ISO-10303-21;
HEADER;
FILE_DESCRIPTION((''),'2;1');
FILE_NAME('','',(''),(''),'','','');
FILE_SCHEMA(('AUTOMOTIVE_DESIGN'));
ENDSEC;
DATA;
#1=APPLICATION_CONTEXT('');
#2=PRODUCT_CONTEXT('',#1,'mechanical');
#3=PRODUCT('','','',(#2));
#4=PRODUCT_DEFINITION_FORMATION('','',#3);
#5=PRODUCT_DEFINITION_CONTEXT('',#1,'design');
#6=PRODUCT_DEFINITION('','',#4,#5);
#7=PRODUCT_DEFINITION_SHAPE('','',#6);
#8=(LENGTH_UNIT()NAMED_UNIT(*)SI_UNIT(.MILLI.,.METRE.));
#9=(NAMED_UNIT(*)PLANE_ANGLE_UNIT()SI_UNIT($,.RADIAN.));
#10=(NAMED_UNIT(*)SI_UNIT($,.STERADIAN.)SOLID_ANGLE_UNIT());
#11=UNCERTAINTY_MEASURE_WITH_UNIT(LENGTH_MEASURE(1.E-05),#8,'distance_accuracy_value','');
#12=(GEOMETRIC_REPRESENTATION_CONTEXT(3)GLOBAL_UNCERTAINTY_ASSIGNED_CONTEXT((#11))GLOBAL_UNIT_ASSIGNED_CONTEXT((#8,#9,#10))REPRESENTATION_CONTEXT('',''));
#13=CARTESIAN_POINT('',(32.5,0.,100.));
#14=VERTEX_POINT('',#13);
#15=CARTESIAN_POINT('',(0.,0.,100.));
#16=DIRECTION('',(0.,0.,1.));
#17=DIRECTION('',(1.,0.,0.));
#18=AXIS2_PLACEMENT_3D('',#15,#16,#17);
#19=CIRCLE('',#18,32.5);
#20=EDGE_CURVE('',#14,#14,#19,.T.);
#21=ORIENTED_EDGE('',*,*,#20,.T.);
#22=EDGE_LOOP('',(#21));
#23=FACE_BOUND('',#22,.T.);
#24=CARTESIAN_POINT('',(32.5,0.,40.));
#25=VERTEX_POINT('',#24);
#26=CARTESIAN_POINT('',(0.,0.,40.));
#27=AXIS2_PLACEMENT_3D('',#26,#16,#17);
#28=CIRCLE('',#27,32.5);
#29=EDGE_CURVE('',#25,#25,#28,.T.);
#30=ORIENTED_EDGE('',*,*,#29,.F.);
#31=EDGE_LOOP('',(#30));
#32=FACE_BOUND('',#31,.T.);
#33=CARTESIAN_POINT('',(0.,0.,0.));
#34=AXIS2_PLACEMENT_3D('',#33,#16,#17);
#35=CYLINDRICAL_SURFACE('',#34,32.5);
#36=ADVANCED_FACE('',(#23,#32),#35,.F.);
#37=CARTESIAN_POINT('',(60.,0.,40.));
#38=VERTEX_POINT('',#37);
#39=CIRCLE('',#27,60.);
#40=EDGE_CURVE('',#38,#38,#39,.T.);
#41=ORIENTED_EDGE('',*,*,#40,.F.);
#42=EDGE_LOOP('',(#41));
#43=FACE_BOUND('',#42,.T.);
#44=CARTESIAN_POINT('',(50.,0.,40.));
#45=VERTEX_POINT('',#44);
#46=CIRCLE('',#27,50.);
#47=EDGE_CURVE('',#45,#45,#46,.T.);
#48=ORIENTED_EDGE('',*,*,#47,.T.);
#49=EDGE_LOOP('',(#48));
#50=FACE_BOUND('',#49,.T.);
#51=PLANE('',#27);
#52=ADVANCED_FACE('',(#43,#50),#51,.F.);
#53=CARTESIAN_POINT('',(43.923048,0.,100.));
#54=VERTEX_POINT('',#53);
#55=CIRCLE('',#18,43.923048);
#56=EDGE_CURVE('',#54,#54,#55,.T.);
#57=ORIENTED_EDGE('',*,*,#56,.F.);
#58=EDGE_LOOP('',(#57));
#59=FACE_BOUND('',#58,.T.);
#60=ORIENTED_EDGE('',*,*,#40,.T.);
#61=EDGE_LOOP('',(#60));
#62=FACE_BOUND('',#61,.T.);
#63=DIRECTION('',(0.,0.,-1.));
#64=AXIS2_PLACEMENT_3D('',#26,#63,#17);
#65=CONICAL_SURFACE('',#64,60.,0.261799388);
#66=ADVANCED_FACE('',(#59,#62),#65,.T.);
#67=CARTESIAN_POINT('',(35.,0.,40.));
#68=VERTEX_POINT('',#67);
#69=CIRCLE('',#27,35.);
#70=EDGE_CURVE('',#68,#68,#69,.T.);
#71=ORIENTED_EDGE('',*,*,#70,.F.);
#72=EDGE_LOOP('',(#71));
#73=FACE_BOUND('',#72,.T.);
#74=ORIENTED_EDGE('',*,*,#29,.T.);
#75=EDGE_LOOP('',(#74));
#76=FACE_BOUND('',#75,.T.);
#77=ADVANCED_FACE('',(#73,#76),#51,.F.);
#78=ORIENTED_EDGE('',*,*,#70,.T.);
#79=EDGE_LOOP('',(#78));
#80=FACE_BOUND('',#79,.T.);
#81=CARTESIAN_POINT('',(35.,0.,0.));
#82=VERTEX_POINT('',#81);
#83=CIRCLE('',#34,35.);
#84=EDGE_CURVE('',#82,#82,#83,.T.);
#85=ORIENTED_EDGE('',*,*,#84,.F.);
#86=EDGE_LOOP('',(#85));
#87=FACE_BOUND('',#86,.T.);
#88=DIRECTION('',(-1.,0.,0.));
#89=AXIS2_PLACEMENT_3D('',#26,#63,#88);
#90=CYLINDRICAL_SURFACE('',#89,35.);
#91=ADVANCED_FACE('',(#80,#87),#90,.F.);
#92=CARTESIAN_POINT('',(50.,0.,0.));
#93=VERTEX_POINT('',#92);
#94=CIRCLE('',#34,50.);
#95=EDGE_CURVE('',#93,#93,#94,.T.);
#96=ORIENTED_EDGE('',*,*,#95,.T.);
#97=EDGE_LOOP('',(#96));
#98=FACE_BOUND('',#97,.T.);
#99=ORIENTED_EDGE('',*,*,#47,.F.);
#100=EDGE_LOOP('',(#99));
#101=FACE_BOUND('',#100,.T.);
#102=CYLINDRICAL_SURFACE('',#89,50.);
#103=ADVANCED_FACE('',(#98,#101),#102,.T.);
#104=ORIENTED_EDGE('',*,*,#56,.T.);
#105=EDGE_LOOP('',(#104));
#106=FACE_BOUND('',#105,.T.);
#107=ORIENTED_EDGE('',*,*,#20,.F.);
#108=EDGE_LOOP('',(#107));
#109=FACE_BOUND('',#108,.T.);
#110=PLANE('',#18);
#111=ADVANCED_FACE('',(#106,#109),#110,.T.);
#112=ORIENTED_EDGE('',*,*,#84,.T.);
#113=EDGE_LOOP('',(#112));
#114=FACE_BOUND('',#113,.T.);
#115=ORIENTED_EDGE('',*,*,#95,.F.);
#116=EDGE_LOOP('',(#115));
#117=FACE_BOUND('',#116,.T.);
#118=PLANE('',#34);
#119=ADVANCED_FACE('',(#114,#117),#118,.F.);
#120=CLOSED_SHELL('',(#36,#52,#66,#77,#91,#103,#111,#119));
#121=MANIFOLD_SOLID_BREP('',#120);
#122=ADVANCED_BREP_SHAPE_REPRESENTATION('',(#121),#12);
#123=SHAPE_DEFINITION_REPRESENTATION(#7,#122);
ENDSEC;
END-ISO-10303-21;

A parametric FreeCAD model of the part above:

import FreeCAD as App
import Part
import Sketcher

V = App.Vector
Q = App.Units.Quantity

doc = App.newDocument("Part")
body = doc.addObject("PartDesign::Body", "Body")

sketch1 = doc.addObject("Sketcher::SketchObject", "Sketch")
body.addObject(sketch1)
sketch1.AttachmentSupport = (doc.XY_Plane, [""])
sketch1.MapMode = "FlatFace"
sketch1.addGeometry(Part.Circle(V(0, 0, 0), V(0, 0, 1), 50), False)
sketch1.addGeometry(Part.Circle(V(0, 0, 0), V(0, 0, 1), 35), False)
sketch1.addConstraint(Sketcher.Constraint("Coincident", 0, 3, -1, 1))
sketch1.addConstraint(Sketcher.Constraint("Coincident", 1, 3, -1, 1))
sketch1.addConstraint(Sketcher.Constraint("Diameter", 0, Q("100 mm")))
sketch1.addConstraint(Sketcher.Constraint("Diameter", 1, Q("70 mm")))
pad1 = doc.addObject("PartDesign::Pad", "Pad")
body.addObject(pad1)
pad1.Profile = sketch1
pad1.Length = 40

sketch2 = doc.addObject("Sketcher::SketchObject", "Sketch001")
body.addObject(sketch2)
sketch2.AttachmentSupport = (doc.XY_Plane, [""])
sketch2.MapMode = "FlatFace"
sketch2.AttachmentOffset = App.Placement(V(0, 0, 40), App.Rotation())
sketch2.addGeometry(Part.Circle(V(0, 0, 0), V(0, 0, 1), 60), False)
sketch2.addConstraint(Sketcher.Constraint("Coincident", 0, 3, -1, 1))
sketch2.addConstraint(Sketcher.Constraint("Diameter", 0, Q("120 mm")))
pad2 = doc.addObject("PartDesign::Pad", "Pad001")
body.addObject(pad2)
pad2.Profile = sketch2
pad2.Length = 60
pad2.TaperAngle = -15

sketch3 = doc.addObject("Sketcher::SketchObject", "Sketch002")
body.addObject(sketch3)
sketch3.AttachmentSupport = (doc.XY_Plane, [""])
sketch3.MapMode = "FlatFace"
sketch3.AttachmentOffset = App.Placement(V(0, 0, 100), App.Rotation())
sketch3.addGeometry(Part.Circle(V(0, 0, 0), V(0, 0, 1), 32), False)
sketch3.addConstraint(Sketcher.Constraint("Coincident", 0, 3, -1, 1))
sketch3.addConstraint(Sketcher.Constraint("Diameter", 0, Q("65 mm")))
pocket1 = doc.addObject("PartDesign::Pocket", "Pocket")
body.addObject(pocket1)
pocket1.Profile = sketch3
pocket1.Type = "ThroughAll"

doc.recompute()
